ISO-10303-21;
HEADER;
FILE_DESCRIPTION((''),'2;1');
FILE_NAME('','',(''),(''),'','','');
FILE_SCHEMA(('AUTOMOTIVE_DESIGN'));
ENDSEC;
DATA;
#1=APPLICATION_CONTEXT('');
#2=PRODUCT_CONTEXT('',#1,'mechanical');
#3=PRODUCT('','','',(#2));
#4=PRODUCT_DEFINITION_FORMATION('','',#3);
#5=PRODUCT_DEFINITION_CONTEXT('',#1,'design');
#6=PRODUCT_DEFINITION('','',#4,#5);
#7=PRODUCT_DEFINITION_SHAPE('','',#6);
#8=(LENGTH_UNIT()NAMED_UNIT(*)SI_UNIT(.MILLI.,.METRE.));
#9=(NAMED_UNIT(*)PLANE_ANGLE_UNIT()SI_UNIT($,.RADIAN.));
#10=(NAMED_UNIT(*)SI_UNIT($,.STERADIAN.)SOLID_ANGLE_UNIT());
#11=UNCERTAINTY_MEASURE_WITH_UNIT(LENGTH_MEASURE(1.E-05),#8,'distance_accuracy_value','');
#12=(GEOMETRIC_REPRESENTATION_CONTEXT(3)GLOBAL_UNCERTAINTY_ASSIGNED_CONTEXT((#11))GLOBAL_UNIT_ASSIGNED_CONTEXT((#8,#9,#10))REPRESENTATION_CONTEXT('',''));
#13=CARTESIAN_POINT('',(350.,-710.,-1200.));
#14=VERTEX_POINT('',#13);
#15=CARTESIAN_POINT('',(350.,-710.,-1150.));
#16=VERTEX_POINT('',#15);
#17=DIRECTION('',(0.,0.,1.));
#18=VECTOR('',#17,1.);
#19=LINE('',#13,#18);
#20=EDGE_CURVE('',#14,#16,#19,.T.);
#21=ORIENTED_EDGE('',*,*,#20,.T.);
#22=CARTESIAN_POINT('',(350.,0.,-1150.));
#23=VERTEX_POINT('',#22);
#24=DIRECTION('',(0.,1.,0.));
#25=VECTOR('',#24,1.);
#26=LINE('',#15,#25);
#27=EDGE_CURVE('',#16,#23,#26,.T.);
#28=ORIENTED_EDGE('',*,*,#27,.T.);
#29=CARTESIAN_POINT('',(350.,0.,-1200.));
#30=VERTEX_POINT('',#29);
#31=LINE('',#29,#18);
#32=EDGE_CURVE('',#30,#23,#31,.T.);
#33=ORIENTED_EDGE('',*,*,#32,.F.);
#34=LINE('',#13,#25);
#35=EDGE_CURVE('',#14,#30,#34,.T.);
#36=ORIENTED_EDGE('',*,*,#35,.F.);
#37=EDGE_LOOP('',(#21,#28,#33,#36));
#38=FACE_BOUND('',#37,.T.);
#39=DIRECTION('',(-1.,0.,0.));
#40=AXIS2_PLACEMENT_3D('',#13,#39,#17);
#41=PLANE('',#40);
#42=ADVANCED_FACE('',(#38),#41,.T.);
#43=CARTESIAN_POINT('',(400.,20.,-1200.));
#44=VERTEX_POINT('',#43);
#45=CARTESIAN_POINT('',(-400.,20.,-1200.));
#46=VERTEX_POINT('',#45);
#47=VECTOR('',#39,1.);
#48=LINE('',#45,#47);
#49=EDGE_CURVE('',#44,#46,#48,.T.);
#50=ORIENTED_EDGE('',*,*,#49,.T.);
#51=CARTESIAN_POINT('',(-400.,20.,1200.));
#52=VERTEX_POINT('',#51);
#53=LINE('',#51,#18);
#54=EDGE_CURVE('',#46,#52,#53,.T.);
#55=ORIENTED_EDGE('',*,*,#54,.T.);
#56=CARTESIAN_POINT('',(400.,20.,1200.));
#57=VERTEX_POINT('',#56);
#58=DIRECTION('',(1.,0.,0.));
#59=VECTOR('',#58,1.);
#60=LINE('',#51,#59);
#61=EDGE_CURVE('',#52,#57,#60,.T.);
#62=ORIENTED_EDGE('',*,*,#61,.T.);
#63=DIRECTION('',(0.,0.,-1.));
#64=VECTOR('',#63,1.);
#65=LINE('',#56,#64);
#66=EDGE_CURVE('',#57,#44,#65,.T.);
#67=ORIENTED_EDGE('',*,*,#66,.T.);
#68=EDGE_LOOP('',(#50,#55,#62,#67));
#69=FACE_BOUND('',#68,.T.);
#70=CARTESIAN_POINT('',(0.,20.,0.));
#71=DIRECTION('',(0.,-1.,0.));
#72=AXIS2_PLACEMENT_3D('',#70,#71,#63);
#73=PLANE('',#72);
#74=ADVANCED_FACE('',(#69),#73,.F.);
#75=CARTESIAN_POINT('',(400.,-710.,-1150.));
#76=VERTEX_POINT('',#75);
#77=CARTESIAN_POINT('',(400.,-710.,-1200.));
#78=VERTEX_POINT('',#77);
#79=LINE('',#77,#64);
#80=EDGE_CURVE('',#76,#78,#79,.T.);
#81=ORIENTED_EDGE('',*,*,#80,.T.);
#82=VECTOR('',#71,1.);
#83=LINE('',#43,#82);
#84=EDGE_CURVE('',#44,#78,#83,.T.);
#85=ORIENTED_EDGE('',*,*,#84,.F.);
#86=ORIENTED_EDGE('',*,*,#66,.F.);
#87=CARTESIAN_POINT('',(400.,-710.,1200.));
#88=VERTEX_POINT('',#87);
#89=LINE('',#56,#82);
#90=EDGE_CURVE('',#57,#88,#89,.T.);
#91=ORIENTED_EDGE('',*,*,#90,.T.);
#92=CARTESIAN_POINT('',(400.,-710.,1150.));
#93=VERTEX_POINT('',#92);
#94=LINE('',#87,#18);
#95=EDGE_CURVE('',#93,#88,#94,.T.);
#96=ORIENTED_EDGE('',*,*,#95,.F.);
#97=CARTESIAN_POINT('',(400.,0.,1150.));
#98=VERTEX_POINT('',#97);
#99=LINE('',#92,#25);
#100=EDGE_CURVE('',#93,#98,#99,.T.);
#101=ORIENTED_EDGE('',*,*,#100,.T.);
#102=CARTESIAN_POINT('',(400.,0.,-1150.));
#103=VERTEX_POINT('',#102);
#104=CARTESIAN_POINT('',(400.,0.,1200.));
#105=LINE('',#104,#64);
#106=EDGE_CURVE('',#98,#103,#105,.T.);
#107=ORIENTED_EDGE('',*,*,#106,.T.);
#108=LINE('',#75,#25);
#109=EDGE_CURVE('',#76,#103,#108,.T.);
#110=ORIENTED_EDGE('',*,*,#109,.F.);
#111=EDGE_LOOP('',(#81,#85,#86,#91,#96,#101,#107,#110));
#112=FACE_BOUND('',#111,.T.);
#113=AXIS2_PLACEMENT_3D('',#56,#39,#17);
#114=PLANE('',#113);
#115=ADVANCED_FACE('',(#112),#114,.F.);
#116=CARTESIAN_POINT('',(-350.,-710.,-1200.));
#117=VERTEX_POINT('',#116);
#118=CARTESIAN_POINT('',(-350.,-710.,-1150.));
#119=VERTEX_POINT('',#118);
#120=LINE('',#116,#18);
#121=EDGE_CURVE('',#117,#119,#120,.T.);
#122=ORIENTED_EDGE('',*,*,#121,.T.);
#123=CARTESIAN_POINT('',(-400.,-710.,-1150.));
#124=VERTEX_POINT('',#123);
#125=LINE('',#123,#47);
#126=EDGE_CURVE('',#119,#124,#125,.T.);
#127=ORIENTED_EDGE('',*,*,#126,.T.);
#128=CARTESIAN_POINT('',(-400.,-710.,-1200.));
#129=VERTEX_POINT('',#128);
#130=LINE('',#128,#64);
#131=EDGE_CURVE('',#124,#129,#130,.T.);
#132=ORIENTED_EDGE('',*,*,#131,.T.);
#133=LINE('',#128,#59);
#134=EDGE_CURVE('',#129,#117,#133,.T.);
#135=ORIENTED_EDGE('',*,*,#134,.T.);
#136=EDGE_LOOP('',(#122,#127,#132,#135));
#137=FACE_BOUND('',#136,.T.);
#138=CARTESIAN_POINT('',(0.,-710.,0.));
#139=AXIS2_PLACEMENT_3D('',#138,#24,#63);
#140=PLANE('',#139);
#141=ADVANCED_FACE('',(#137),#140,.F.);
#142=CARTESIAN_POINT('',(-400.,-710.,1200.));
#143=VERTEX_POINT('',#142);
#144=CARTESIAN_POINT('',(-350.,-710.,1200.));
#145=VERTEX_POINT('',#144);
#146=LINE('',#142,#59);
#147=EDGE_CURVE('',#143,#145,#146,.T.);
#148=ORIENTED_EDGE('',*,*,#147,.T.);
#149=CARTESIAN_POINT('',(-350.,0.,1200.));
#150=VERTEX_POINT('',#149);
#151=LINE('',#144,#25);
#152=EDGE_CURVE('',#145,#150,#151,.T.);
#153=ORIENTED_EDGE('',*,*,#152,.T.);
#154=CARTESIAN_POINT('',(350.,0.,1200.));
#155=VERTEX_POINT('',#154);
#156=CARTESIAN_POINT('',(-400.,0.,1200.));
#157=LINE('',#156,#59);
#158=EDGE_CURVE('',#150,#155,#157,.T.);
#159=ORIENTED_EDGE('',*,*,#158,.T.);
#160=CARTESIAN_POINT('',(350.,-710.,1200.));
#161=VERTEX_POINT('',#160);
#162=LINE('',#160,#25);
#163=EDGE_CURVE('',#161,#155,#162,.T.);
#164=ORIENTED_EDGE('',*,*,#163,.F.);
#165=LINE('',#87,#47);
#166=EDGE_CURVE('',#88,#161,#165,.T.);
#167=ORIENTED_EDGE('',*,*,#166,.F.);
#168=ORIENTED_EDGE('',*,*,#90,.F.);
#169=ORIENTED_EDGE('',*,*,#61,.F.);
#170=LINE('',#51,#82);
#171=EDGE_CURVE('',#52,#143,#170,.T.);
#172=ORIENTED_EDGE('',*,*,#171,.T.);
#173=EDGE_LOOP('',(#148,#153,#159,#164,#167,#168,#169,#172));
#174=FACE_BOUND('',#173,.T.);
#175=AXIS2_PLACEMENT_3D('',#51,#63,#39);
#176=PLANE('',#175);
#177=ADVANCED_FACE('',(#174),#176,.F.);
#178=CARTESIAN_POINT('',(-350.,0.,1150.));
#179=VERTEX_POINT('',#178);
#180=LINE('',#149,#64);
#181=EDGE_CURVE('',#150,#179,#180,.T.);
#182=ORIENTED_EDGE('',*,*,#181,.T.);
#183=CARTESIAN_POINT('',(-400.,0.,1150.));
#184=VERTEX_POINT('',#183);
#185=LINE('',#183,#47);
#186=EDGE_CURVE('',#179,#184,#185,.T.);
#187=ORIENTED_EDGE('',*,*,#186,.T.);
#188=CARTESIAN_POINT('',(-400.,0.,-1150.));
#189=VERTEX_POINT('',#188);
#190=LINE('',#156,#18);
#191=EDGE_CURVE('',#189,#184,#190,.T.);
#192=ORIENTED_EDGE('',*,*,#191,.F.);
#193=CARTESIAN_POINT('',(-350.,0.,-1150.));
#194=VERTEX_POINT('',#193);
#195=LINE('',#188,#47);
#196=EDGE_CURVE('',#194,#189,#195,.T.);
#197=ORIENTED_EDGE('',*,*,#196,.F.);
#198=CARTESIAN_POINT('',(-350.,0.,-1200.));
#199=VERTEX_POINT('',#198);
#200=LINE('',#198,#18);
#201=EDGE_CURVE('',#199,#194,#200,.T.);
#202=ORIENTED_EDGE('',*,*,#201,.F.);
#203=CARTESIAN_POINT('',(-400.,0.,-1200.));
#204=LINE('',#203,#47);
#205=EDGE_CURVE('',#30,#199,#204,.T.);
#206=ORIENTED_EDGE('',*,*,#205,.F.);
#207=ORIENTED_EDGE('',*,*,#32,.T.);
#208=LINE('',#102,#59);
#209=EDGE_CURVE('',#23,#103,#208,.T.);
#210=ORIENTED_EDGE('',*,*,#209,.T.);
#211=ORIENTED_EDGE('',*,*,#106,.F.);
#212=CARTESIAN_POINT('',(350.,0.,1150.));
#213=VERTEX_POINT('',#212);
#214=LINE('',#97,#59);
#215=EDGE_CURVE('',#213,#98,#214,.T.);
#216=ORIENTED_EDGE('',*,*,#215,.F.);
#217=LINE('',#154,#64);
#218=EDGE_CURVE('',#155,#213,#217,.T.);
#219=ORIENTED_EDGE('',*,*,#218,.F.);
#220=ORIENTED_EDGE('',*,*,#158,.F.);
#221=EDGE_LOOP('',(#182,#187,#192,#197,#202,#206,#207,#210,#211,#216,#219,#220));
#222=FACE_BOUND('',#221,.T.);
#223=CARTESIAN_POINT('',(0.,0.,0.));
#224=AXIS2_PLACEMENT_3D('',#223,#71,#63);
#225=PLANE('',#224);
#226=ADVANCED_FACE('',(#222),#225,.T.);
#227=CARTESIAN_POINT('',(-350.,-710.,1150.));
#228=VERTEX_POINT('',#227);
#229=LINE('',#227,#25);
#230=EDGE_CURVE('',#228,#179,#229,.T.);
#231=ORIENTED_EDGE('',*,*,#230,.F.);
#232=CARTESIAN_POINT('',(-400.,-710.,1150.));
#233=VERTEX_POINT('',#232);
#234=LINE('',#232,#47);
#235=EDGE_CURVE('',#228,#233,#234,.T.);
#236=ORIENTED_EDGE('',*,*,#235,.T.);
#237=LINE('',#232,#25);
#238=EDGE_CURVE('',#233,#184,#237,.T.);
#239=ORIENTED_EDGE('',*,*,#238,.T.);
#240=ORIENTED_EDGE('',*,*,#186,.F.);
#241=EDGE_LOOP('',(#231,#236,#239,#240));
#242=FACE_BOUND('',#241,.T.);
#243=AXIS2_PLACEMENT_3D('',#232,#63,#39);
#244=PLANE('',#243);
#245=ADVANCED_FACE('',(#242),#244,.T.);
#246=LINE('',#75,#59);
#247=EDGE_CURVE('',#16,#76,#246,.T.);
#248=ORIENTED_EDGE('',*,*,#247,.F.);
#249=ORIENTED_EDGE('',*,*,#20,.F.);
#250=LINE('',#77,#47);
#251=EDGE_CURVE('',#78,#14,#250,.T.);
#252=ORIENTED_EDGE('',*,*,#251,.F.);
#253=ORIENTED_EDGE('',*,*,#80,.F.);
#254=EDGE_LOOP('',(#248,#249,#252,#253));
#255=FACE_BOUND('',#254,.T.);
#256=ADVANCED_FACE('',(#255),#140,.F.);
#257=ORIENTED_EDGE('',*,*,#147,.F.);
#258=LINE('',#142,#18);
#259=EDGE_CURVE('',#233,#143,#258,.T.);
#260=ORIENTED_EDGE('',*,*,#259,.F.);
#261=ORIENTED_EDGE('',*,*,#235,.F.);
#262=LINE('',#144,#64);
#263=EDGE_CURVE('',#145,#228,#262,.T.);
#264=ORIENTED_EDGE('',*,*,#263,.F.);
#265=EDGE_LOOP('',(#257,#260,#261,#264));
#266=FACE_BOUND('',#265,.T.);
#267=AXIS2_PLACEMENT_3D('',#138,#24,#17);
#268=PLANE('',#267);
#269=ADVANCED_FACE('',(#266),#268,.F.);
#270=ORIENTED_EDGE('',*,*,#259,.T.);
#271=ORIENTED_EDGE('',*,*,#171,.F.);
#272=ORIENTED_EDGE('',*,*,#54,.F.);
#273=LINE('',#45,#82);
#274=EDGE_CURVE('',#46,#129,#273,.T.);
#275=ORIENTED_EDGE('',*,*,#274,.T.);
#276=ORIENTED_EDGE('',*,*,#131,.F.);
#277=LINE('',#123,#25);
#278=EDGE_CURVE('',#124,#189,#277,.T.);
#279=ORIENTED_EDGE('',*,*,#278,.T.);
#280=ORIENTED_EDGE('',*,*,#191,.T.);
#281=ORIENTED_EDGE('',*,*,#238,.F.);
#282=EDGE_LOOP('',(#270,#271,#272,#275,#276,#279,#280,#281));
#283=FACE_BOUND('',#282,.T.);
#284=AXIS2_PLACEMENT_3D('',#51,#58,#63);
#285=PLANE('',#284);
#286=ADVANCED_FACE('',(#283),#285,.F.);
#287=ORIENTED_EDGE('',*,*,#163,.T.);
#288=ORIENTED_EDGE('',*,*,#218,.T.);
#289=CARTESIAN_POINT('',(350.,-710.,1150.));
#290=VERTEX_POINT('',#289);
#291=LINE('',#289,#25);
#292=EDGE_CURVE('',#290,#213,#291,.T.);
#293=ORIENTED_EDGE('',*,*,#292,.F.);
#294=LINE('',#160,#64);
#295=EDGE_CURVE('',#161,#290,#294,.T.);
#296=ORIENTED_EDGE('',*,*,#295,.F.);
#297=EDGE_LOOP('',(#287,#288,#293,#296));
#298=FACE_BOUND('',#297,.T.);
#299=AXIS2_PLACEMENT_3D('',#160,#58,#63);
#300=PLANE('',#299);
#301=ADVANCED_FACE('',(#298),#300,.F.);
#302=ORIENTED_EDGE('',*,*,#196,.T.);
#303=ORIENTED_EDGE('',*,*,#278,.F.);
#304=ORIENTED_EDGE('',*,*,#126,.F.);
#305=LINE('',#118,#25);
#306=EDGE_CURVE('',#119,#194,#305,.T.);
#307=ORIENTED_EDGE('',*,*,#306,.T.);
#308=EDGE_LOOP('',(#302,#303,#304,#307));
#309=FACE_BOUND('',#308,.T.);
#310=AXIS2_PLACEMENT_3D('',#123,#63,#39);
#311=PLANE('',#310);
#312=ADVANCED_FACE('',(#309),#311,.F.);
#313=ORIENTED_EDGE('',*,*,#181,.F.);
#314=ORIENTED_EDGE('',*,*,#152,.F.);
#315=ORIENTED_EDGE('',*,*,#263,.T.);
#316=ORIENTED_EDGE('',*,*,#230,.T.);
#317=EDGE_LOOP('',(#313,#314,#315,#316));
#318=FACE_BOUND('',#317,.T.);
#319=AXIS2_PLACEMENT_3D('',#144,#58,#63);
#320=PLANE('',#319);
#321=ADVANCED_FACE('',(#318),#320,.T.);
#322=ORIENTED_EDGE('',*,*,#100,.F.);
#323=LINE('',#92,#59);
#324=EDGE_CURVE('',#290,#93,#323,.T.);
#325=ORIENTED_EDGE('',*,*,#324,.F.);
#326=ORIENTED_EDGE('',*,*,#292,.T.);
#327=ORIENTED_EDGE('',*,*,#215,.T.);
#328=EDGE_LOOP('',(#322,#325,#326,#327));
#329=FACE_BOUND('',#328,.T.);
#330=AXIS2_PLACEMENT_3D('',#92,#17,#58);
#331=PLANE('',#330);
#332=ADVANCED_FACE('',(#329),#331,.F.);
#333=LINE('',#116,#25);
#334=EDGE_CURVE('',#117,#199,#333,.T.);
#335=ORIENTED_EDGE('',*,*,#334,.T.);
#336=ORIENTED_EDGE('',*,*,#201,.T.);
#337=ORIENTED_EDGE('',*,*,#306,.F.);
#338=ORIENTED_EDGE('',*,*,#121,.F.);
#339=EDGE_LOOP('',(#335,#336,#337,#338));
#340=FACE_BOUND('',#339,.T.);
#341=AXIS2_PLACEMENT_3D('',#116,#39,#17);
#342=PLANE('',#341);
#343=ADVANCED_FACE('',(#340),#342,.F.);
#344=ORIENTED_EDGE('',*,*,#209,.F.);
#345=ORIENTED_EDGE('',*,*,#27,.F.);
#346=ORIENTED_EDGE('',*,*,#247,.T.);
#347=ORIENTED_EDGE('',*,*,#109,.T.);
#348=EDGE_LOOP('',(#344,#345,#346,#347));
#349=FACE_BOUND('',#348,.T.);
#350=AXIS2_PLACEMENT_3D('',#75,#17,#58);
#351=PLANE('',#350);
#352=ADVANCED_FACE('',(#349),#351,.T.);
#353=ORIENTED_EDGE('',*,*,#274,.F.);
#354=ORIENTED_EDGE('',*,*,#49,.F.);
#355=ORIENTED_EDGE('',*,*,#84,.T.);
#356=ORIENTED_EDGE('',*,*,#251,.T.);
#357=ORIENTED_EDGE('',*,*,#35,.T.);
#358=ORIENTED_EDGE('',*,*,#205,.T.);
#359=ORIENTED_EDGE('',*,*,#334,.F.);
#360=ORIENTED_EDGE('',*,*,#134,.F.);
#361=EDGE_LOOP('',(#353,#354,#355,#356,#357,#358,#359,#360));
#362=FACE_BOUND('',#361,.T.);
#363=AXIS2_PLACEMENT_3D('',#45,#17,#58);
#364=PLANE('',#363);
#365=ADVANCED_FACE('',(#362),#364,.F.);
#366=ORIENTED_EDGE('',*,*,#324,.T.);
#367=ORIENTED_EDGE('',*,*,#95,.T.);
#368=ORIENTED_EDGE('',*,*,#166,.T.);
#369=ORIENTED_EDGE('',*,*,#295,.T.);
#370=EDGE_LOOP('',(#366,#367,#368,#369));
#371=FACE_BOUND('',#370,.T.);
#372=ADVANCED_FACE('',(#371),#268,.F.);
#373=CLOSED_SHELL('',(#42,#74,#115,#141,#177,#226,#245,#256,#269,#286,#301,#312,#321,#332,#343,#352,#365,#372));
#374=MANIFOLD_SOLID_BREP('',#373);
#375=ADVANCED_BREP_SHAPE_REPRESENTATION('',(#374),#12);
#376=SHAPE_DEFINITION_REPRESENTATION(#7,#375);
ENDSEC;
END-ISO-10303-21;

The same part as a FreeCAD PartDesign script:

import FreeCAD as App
import Part
import Sketcher
Q = App.Units.Quantity

doc = App.newDocument("Part")
body = doc.addObject("PartDesign::Body", "Body")

# Sketch on XZ plane
sketch1 = body.newObject("Sketcher::SketchObject", "Sketch")
sketch1.AttachmentSupport = (doc.getObject("XZ_Plane"), [""])
sketch1.MapMode = "FlatFace"
sketch1.addGeometry([
    Part.LineSegment(App.Vector(-400, -1200, 0), App.Vector(-400, 1200, 0)),
    Part.LineSegment(App.Vector(-400, 1200, 0), App.Vector(400, 1200, 0)),
    Part.LineSegment(App.Vector(400, 1200, 0), App.Vector(400, -1200, 0)),
    Part.LineSegment(App.Vector(400, -1200, 0), App.Vector(-400, -1200, 0)),
], False)
sketch1.addConstraint([
    Sketcher.Constraint("Coincident", 0, 2, 1, 1),
    Sketcher.Constraint("Coincident", 1, 2, 2, 1),
    Sketcher.Constraint("Coincident", 2, 2, 3, 1),
    Sketcher.Constraint("Coincident", 3, 2, 0, 1),
    Sketcher.Constraint("Vertical", 0),
    Sketcher.Constraint("Horizontal", 1),
    Sketcher.Constraint("Vertical", 2),
    Sketcher.Constraint("Horizontal", 3),
    Sketcher.Constraint("Symmetric", 0, 2, 2, 2, -1, 1),
    Sketcher.Constraint("DistanceX", 1, 1, 1, 2, Q("800 mm")),
    Sketcher.Constraint("DistanceY", 0, 1, 0, 2, Q("2400 mm")),
])
pad1 = body.newObject("PartDesign::Pad", "Pad")
pad1.Profile = sketch1
pad1.Length = 20
pad1.Reversed = True

# Sketch on XZ plane
sketch2 = body.newObject("Sketcher::SketchObject", "Sketch001")
sketch2.AttachmentSupport = (doc.getObject("XZ_Plane"), [""])
sketch2.MapMode = "FlatFace"
sketch2.addGeometry([
    Part.LineSegment(App.Vector(400, 1150, 0), App.Vector(400, 1200, 0)),
    Part.LineSegment(App.Vector(400, 1200, 0), App.Vector(350, 1200, 0)),
    Part.LineSegment(App.Vector(350, 1200, 0), App.Vector(350, 1150, 0)),
    Part.LineSegment(App.Vector(350, 1150, 0), App.Vector(400, 1150, 0)),
], False)
sketch2.addConstraint([
    Sketcher.Constraint("Coincident", 0, 2, 1, 1),
    Sketcher.Constraint("Coincident", 1, 2, 2, 1),
    Sketcher.Constraint("Coincident", 2, 2, 3, 1),
    Sketcher.Constraint("Coincident", 3, 2, 0, 1),
    Sketcher.Constraint("Vertical", 0),
    Sketcher.Constraint("Horizontal", 1),
    Sketcher.Constraint("Vertical", 2),
    Sketcher.Constraint("Horizontal", 3),
    Sketcher.Constraint("Equal", 3, 0),
    Sketcher.Constraint("DistanceX", 1, 2, 1, 1, Q("50 mm")),
    Sketcher.Constraint("DistanceX", -1, 1, 0, 2, Q("400 mm")),
    Sketcher.Constraint("DistanceY", -1, 1, 0, 2, Q("1200 mm")),
])
pad2 = body.newObject("PartDesign::Pad", "Pad001")
pad2.Profile = sketch2
pad2.Length = 710
doc.recompute()

mirrored = body.newObject("PartDesign::Mirrored", "Mirrored")
mirrored.Originals = [pad2]
mirrored.MirrorPlane = (doc.getObject("XY_Plane"), [""])
body.Tip = mirrored
doc.recompute()

mirrored2 = body.newObject("PartDesign::Mirrored", "Mirrored001")
mirrored2.Originals = [pad2]
mirrored2.MirrorPlane = (doc.getObject("YZ_Plane"), [""])
body.Tip = mirrored2

# Sketch on XZ plane
sketch3 = body.newObject("Sketcher::SketchObject", "Sketch002")
sketch3.AttachmentSupport = (doc.getObject("XZ_Plane"), [""])
sketch3.MapMode = "FlatFace"
sketch3.addGeometry([
    Part.LineSegment(App.Vector(-400, -1150, 0), App.Vector(-400, -1200, 0)),
    Part.LineSegment(App.Vector(-400, -1200, 0), App.Vector(-350, -1200, 0)),
    Part.LineSegment(App.Vector(-350, -1200, 0), App.Vector(-350, -1150, 0)),
    Part.LineSegment(App.Vector(-350, -1150, 0), App.Vector(-400, -1150, 0)),
], False)
sketch3.addConstraint([
    Sketcher.Constraint("Coincident", 0, 2, 1, 1),
    Sketcher.Constraint("Coincident", 1, 2, 2, 1),
    Sketcher.Constraint("Coincident", 2, 2, 3, 1),
    Sketcher.Constraint("Coincident", 3, 2, 0, 1),
    Sketcher.Constraint("Vertical", 0),
    Sketcher.Constraint("Horizontal", 1),
    Sketcher.Constraint("Vertical", 2),
    Sketcher.Constraint("Horizontal", 3),
    Sketcher.Constraint("Equal", 3, 0),
    Sketcher.Constraint("DistanceX", 1, 1, 1, 2, Q("50 mm")),
    Sketcher.Constraint("DistanceX", 0, 2, -1, 1, Q("400 mm")),
    Sketcher.Constraint("DistanceY", 0, 2, -1, 1, Q("1200 mm")),
])
pad3 = body.newObject("PartDesign::Pad", "Pad002")
pad3.Profile = sketch3
pad3.Length = 710

doc.recompute()
